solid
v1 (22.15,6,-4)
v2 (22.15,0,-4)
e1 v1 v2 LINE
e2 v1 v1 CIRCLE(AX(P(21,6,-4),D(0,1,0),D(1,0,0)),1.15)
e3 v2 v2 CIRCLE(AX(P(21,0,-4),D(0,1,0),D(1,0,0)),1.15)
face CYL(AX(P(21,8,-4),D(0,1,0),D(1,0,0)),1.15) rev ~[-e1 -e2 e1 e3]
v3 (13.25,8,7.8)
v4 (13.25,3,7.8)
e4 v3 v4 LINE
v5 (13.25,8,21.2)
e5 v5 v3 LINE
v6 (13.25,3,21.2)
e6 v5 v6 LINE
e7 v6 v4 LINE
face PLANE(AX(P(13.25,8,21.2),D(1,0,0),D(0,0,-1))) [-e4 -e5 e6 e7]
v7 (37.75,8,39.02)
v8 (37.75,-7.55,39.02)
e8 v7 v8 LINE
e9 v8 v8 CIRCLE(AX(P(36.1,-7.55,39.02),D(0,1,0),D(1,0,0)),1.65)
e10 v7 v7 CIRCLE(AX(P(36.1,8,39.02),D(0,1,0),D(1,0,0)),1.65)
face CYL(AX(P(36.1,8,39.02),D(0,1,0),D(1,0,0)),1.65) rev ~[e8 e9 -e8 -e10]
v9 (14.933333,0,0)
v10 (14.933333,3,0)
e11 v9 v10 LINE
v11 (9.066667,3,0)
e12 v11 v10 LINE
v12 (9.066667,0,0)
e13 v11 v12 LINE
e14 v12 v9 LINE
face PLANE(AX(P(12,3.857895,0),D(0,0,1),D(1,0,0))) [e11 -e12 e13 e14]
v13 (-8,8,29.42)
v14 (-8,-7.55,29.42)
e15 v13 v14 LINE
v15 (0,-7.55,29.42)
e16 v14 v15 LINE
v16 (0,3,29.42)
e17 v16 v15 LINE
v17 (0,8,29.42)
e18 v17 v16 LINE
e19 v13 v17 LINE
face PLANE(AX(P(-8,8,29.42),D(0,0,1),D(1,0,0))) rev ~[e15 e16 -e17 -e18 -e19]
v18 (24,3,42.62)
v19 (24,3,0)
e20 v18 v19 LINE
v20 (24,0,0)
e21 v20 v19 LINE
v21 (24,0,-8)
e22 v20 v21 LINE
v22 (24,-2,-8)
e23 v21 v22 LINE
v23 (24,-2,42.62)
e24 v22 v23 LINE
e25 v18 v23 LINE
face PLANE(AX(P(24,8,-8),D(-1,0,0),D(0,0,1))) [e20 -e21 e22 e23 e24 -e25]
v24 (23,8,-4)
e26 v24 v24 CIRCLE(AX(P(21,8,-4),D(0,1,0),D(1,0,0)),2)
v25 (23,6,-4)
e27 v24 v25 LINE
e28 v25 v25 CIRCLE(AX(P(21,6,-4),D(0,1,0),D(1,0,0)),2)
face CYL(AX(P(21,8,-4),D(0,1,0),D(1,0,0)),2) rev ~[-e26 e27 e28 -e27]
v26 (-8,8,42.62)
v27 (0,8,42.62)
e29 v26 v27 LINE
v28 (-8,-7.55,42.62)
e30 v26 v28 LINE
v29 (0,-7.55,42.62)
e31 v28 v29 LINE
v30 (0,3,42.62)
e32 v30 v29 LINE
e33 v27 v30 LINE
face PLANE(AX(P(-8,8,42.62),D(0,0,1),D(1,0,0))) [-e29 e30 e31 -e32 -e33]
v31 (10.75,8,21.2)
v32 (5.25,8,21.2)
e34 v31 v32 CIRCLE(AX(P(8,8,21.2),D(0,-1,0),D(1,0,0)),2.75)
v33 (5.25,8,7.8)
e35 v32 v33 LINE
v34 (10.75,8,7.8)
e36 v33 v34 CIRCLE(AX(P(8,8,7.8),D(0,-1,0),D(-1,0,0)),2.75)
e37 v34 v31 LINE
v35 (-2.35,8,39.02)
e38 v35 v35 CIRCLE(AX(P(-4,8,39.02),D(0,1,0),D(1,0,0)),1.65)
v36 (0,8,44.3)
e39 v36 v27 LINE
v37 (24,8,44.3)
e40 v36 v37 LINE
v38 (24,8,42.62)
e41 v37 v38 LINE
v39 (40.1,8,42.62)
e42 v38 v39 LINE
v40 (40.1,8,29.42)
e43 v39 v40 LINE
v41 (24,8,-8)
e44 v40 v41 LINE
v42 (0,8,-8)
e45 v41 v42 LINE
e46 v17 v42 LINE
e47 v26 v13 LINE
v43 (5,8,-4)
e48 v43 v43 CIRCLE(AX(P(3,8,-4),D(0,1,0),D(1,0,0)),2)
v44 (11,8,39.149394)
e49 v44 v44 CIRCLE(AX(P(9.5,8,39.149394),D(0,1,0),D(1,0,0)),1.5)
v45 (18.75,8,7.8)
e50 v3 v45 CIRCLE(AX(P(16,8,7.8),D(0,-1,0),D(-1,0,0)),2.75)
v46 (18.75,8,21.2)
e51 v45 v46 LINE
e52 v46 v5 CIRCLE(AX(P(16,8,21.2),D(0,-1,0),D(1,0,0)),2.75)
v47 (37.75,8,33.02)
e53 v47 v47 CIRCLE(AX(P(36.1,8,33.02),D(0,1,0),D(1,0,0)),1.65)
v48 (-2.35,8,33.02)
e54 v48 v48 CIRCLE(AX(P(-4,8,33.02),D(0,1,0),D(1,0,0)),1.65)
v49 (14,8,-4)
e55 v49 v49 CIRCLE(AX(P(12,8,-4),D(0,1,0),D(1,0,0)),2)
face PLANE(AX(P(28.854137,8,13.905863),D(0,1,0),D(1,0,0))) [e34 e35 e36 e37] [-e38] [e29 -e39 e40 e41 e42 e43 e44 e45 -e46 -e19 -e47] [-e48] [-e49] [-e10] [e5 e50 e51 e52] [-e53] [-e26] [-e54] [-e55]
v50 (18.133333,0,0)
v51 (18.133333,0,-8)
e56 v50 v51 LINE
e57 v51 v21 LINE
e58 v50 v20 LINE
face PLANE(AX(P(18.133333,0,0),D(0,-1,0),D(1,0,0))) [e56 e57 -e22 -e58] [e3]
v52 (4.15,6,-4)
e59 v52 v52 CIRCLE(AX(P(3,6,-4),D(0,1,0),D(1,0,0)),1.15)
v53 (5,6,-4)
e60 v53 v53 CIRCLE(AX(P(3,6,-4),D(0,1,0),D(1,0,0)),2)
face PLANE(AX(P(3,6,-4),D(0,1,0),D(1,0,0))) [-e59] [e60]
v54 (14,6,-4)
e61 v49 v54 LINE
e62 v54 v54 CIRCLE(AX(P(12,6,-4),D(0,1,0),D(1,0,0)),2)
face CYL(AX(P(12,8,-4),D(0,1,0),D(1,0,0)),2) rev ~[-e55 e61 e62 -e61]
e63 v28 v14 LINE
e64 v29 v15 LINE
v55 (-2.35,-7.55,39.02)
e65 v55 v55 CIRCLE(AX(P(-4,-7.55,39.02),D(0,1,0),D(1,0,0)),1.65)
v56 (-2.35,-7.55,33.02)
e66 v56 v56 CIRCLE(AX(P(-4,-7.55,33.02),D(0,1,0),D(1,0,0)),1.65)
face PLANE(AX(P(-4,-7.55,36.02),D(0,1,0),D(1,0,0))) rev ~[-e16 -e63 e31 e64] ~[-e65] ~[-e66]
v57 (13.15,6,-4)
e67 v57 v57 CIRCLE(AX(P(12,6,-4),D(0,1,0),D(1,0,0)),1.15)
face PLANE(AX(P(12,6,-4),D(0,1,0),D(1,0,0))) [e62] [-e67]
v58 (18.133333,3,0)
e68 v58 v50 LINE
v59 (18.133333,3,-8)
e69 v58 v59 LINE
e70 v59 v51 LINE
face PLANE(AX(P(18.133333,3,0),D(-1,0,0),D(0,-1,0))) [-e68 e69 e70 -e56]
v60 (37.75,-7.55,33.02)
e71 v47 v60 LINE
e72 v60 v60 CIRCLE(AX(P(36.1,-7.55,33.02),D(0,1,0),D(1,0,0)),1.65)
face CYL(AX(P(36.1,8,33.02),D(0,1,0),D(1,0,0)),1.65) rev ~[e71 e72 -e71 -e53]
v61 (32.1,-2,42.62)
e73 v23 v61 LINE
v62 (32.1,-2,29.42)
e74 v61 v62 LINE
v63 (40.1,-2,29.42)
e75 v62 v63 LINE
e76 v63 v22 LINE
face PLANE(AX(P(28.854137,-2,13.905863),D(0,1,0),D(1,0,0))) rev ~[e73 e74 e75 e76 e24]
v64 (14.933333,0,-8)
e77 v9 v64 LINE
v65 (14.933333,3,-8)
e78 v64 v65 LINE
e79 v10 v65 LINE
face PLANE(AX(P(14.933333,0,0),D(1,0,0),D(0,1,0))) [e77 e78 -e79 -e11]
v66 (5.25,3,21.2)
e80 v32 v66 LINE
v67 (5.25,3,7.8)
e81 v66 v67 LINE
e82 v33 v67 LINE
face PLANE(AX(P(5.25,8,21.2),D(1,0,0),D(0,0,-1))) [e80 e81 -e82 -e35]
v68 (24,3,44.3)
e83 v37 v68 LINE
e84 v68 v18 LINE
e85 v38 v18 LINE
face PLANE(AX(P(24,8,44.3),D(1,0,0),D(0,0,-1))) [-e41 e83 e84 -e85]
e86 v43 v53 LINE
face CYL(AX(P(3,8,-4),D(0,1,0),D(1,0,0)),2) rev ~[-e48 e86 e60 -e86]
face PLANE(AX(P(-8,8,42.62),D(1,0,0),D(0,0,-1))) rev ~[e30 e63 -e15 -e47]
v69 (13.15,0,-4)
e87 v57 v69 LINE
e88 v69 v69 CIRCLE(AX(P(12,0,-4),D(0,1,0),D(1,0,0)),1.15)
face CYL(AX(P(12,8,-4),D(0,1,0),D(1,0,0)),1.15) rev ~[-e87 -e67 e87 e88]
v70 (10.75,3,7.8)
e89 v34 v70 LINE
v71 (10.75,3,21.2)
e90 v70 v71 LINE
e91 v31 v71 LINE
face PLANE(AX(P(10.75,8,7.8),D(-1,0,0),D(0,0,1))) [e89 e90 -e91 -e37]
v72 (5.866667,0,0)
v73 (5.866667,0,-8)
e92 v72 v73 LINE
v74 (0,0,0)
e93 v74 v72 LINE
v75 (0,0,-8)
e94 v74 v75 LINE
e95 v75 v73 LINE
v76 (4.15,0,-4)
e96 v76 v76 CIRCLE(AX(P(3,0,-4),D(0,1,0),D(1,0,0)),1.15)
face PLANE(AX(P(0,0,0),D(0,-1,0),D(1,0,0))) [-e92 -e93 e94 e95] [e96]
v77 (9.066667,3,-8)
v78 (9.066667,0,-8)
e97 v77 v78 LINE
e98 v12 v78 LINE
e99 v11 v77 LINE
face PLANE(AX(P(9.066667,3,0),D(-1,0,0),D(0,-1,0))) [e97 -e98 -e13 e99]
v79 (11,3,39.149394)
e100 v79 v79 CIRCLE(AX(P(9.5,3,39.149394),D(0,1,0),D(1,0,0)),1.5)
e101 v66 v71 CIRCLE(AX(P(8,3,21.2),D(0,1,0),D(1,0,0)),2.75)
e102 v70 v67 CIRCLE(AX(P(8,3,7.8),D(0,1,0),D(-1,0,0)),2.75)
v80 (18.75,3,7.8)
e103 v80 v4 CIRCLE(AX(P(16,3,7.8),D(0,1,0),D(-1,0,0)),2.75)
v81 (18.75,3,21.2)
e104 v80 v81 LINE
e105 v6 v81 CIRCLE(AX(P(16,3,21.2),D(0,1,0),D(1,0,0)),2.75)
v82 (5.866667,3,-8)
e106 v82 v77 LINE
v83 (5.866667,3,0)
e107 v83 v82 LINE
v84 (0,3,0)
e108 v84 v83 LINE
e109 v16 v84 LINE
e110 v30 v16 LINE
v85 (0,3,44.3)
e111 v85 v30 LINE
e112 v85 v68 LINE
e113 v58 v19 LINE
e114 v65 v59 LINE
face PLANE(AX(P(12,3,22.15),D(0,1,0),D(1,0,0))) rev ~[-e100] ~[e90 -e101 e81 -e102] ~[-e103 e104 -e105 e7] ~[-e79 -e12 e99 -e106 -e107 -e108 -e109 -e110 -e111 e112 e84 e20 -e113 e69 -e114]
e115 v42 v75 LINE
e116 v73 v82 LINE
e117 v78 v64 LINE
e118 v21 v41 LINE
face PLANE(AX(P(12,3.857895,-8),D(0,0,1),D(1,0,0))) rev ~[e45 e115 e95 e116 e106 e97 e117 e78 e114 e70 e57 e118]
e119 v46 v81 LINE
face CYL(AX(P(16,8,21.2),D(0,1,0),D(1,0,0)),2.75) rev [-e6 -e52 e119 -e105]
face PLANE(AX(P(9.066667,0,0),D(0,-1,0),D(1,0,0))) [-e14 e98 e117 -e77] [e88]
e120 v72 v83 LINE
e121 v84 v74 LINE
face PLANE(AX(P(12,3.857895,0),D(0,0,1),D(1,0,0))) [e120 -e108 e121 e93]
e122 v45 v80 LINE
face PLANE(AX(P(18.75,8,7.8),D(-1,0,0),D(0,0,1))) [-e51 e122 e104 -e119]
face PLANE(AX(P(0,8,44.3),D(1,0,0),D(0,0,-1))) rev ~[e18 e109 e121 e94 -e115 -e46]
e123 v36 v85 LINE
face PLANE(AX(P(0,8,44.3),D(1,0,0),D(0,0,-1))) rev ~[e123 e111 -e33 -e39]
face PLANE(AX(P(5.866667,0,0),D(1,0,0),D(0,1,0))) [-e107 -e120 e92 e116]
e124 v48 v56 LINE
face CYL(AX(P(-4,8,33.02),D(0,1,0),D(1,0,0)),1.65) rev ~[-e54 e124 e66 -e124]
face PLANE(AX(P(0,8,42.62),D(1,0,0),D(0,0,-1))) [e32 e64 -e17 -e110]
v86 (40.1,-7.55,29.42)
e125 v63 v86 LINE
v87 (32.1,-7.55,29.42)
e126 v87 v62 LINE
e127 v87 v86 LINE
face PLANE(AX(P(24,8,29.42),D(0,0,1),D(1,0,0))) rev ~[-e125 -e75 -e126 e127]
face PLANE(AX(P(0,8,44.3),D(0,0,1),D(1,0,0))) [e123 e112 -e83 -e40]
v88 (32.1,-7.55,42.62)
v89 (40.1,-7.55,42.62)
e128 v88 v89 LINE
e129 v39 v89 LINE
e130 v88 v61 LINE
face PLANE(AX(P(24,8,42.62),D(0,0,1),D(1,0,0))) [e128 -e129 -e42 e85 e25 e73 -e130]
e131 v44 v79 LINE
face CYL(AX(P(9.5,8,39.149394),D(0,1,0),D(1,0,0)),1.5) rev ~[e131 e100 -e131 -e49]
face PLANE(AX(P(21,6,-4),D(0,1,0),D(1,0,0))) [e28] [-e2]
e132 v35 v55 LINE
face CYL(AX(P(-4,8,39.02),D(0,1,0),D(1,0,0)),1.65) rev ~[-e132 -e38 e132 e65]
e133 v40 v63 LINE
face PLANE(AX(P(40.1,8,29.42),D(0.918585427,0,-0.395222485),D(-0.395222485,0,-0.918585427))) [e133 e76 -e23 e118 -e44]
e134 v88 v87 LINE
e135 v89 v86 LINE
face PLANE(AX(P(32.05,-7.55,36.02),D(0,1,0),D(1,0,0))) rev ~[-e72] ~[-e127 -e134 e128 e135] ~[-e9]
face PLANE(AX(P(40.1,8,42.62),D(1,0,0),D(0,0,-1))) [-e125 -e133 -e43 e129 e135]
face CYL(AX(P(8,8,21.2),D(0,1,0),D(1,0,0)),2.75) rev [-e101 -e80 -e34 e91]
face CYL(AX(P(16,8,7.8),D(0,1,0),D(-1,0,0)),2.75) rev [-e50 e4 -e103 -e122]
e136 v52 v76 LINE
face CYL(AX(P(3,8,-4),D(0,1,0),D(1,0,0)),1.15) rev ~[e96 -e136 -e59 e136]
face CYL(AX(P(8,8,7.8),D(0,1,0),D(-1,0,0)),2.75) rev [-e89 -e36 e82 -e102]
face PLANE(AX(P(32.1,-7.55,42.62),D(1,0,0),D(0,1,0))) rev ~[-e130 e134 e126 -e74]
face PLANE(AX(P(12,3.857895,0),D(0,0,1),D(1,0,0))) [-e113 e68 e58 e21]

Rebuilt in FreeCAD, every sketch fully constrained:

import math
import FreeCAD as App
import Part
import Sketcher
from FreeCAD import Vector
Q = App.Units.Quantity


def add_polygon(sketch, points):
    """Adds a closed chain of lines whose ends are joined by coincident constraints."""
    first, n = sketch.GeometryCount, len(points)
    for a, b in zip(points, points[1:] + points[:1]):
        sketch.addGeometry(Part.LineSegment(App.Vector(*a, 0), App.Vector(*b, 0)), False)
    for i in range(n):
        sketch.addConstraint(Sketcher.Constraint("Coincident", first + i, 2, first + (i + 1) % n, 1))

doc = App.newDocument("Part")
body = doc.addObject("PartDesign::Body", "Body")

sketch1 = body.newObject("Sketcher::SketchObject", "Sketch")
sketch1.AttachmentSupport = (doc.getObject("XY_Plane"), [""])
sketch1.MapMode = "FlatFace"
add_polygon(sketch1, [(0, 0), (5.9, 0), (5.9, 3), (9.1, 3), (9.1, 0), (14.9, 0), (14.9, 3), (18.1, 3), (18.1, 0), (24, 0), (24, 8), (0, 8)])
sketch1.addConstraint([
    Sketcher.Constraint("Horizontal", 0),
    Sketcher.Constraint("Vertical", 1),
    Sketcher.Constraint("Horizontal", 2),
    Sketcher.Constraint("Vertical", 3),
    Sketcher.Constraint("Horizontal", 4),
    Sketcher.Constraint("Vertical", 5),
    Sketcher.Constraint("Horizontal", 6),
    Sketcher.Constraint("Vertical", 7),
    Sketcher.Constraint("Horizontal", 8),
    Sketcher.Constraint("Vertical", 9),
    Sketcher.Constraint("Horizontal", 10),
    Sketcher.Constraint("Vertical", 11),
    Sketcher.Constraint("Coincident", 11, 2, -1, 1),
    Sketcher.Constraint("PointOnObject", 3, 2, -1),
    Sketcher.Constraint("PointOnObject", 7, 2, -1),
    Sketcher.Constraint("Horizontal", 2, 2, 5, 2),
    Sketcher.Constraint("Equal", 0, 4),
    Sketcher.Constraint("Equal", 2, 6),
    Sketcher.Constraint("Equal", 4, 8),
    Sketcher.Constraint("DistanceX", 10, 2, 10, 1, Q("24 mm")),
    Sketcher.Constraint("DistanceY", 1, 1, 1, 2, Q("3 mm")),
    Sketcher.Constraint("DistanceY", 9, 1, 9, 2, Q("8 mm")),
    Sketcher.Constraint("DistanceX", 2, 1, 2, 2, Q("3.2 mm")),
])
pad1 = body.newObject("PartDesign::Pad", "Pad")
pad1.Profile = sketch1
pad1.Length = 8
pad1.Reversed = True

sketch2 = body.newObject("Sketcher::SketchObject", "Sketch001")
sketch2.AttachmentSupport = (doc.getObject("XZ_Plane"), [""])
sketch2.MapMode = "FlatFace"
sketch2.AttachmentOffset = App.Placement(Vector(0, 0, -8), App.Rotation())
sketch2.addGeometry([
    Part.Circle(Vector(3, -4, 0), Vector(0, 0, 1), 1.1),
    Part.Circle(Vector(12, -4, 0), Vector(0, 0, 1), 1.1),
    Part.Circle(Vector(21, -4, 0), Vector(0, 0, 1), 1.1),
], False)
sketch2.addConstraint([
    Sketcher.Constraint("Equal", 0, 1),
    Sketcher.Constraint("Equal", 1, 2),
    Sketcher.Constraint("Horizontal", 0, 3, 1, 3),
    Sketcher.Constraint("Horizontal", 1, 3, 2, 3),
    Sketcher.Constraint("Diameter", 0, Q("2.3 mm")),
    Sketcher.Constraint("DistanceX", -1, 1, 0, 3, Q("3 mm")),
    Sketcher.Constraint("DistanceY", 0, 3, -1, 1, Q("4 mm")),
    Sketcher.Constraint("DistanceX", -1, 1, 1, 3, Q("12 mm")),
    Sketcher.Constraint("DistanceX", -1, 1, 2, 3, Q("21 mm")),
])
pocket1 = body.newObject("PartDesign::Pocket", "Pocket")
pocket1.Profile = sketch2
pocket1.Type = "ThroughAll"
pocket1.Reversed = True

sketch3 = body.newObject("Sketcher::SketchObject", "Sketch002")
sketch3.AttachmentSupport = (doc.getObject("XZ_Plane"), [""])
sketch3.MapMode = "FlatFace"
sketch3.AttachmentOffset = App.Placement(Vector(0, 0, -8), App.Rotation())
sketch3.addGeometry([
    Part.Circle(Vector(3, -4, 0), Vector(0, 0, 1), 2),
    Part.Circle(Vector(12, -4, 0), Vector(0, 0, 1), 2),
    Part.Circle(Vector(21, -4, 0), Vector(0, 0, 1), 2),
], False)
sketch3.addConstraint([
    Sketcher.Constraint("Equal", 0, 1),
    Sketcher.Constraint("Equal", 1, 2),
    Sketcher.Constraint("Horizontal", 0, 3, 1, 3),
    Sketcher.Constraint("Horizontal", 1, 3, 2, 3),
    Sketcher.Constraint("Diameter", 0, Q("4 mm")),
    Sketcher.Constraint("DistanceX", -1, 1, 0, 3, Q("3 mm")),
    Sketcher.Constraint("DistanceY", 0, 3, -1, 1, Q("4 mm")),
    Sketcher.Constraint("DistanceX", -1, 1, 1, 3, Q("12 mm")),
    Sketcher.Constraint("DistanceX", -1, 1, 2, 3, Q("21 mm")),
])
pocket2 = body.newObject("PartDesign::Pocket", "Pocket001")
pocket2.Profile = sketch3
pocket2.Length = 2
pocket2.Reversed = True

sketch4 = body.newObject("Sketcher::SketchObject", "Sketch003")
sketch4.AttachmentSupport = (doc.getObject("XZ_Plane"), [""])
sketch4.MapMode = "FlatFace"
sketch4.AttachmentOffset = App.Placement(Vector(0, 0, -8), App.Rotation())
add_polygon(sketch4, [(0, 0), (0, 44.3), (24, 44.3), (24, 0)])
sketch4.addGeometry(Part.Circle(Vector(9.5, 39.1, 0), Vector(0, 0, 1), 1.5), False)
sketch4.addConstraint([
    Sketcher.Constraint("Vertical", 0),
    Sketcher.Constraint("Horizontal", 1),
    Sketcher.Constraint("Vertical", 2),
    Sketcher.Constraint("Horizontal", 3),
    Sketcher.Constraint("Coincident", 3, 2, -1, 1),
    Sketcher.Constraint("Diameter", 4, Q("3 mm")),
    Sketcher.Constraint("DistanceX", 1, 1, 1, 2, Q("24 mm")),
    Sketcher.Constraint("DistanceY", 0, 1, 0, 2, Q("44.3 mm")),
    Sketcher.Constraint("DistanceX", -1, 1, 4, 3, Q("9.5 mm")),
    Sketcher.Constraint("DistanceY", -1, 1, 4, 3, Q("39.149394 mm")),
])
pad2 = body.newObject("PartDesign::Pad", "Pad001")
pad2.Profile = sketch4
pad2.Length = 5

sketch5 = body.newObject("Sketcher::SketchObject", "Sketch004")
sketch5.AttachmentSupport = (doc.getObject("XZ_Plane"), [""])
sketch5.MapMode = "FlatFace"
sketch5.AttachmentOffset = App.Placement(Vector(0, 0, -8), App.Rotation())
sketch5.addGeometry([
    Part.LineSegment(Vector(10.8, 21.2, 0), Vector(10.8, 7.8, 0)),
    Part.ArcOfCircle(Part.Circle(Vector(8, 7.8, 0), Vector(0, 0, 1), 2.8), math.radians(180), math.radians(360)),
    Part.LineSegment(Vector(5.2, 7.8, 0), Vector(5.2, 21.2, 0)),
    Part.ArcOfCircle(Part.Circle(Vector(8, 21.2, 0), Vector(0, 0, 1), 2.8), math.radians(0), math.radians(180)),
    Part.LineSegment(Vector(18.8, 21.2, 0), Vector(18.8, 7.8, 0)),
    Part.ArcOfCircle(Part.Circle(Vector(16, 7.8, 0), Vector(0, 0, 1), 2.8), math.radians(180), math.radians(360)),
    Part.LineSegment(Vector(13.2, 7.8, 0), Vector(13.2, 21.2, 0)),
    Part.ArcOfCircle(Part.Circle(Vector(16, 21.2, 0), Vector(0, 0, 1), 2.8), math.radians(0), math.radians(180)),
], False)
sketch5.addConstraint([
    Sketcher.Constraint("Tangent", 0, 2, 1, 2),
    Sketcher.Constraint("Tangent", 1, 1, 2, 1),
    Sketcher.Constraint("Tangent", 2, 2, 3, 2),
    Sketcher.Constraint("Tangent", 3, 1, 0, 1),
    Sketcher.Constraint("Tangent", 4, 2, 5, 2),
    Sketcher.Constraint("Tangent", 5, 1, 6, 1),
    Sketcher.Constraint("Tangent", 6, 2, 7, 2),
    Sketcher.Constraint("Tangent", 7, 1, 4, 1),
    Sketcher.Constraint("Vertical", 0),
    Sketcher.Constraint("Vertical", 2),
    Sketcher.Constraint("Vertical", 4),
    Sketcher.Constraint("Vertical", 6),
    Sketcher.Constraint("Equal", 3, 5),
    Sketcher.Constraint("Horizontal", 1, 3, 5, 3),
    Sketcher.Constraint("Horizontal", 3, 3, 7, 3),
    Sketcher.Constraint("Radius", 1, Q("2.75 mm")),
    Sketcher.Constraint("DistanceY", 0, 2, 0, 1, Q("13.4 mm")),
    Sketcher.Constraint("DistanceX", -1, 1, 1, 3, Q("8 mm")),
    Sketcher.Constraint("DistanceX", -1, 1, 5, 3, Q("16 mm")),
    Sketcher.Constraint("DistanceY", -1, 1, 1, 3, Q("7.8 mm")),
])
pocket3 = body.newObject("PartDesign::Pocket", "Pocket002")
pocket3.Profile = sketch5
pocket3.Length = 20
pocket3.Reversed = True

sketch6 = body.newObject("Sketcher::SketchObject", "Sketch005")
sketch6.AttachmentSupport = (doc.getObject("XZ_Plane"), [""])
sketch6.MapMode = "FlatFace"
sketch6.AttachmentOffset = App.Placement(Vector(0, 0, -8), App.Rotation())
add_polygon(sketch6, [(-8, 29.4), (-8, 42.6), (0, 42.6), (0, 29.4)])
sketch6.addGeometry(Part.Circle(Vector(-4, 39, 0), Vector(0, 0, 1), 1.6), False)
sketch6.addGeometry(Part.Circle(Vector(-4, 33, 0), Vector(0, 0, 1), 1.6), False)
add_polygon(sketch6, [(24, 29.4), (24, 42.6), (40.1, 42.6), (40.1, 29.4)])
sketch6.addGeometry(Part.Circle(Vector(36.1, 39, 0), Vector(0, 0, 1), 1.6), False)
sketch6.addGeometry(Part.Circle(Vector(36.1, 33, 0), Vector(0, 0, 1), 1.6), False)
sketch6.addConstraint([
    Sketcher.Constraint("Vertical", 0),
    Sketcher.Constraint("Horizontal", 1),
    Sketcher.Constraint("Vertical", 2),
    Sketcher.Constraint("Horizontal", 3),
    Sketcher.Constraint("Vertical", 6),
    Sketcher.Constraint("Horizontal", 7),
    Sketcher.Constraint("Vertical", 8),
    Sketcher.Constraint("Horizontal", 9),
    Sketcher.Constraint("Equal", 4, 5),
    Sketcher.Constraint("Equal", 5, 10),
    Sketcher.Constraint("Equal", 10, 11),
    Sketcher.Constraint("PointOnObject", 1, 2, -2),
    Sketcher.Constraint("Horizontal", 4, 3, 10, 3),
    Sketcher.Constraint("Horizontal", 5, 3, 11, 3),
    Sketcher.Constraint("Horizontal", 1, 2, 6, 2),
    Sketcher.Constraint("Horizontal", 3, 2, 8, 2),
    Sketcher.Constraint("Vertical", 4, 3, 5, 3),
    Sketcher.Constraint("Vertical", 10, 3, 11, 3),
    Sketcher.Constraint("Diameter", 4, Q("3.3 mm")),
    Sketcher.Constraint("DistanceX", 1, 1, 1, 2, Q("8 mm")),
    Sketcher.Constraint("DistanceX", 7, 1, 7, 2, Q("16.1 mm")),
    Sketcher.Constraint("DistanceY", 0, 1, 0, 2, Q("13.2 mm")),
    Sketcher.Constraint("DistanceX", 4, 3, -1, 1, Q("4 mm")),
    Sketcher.Constraint("DistanceX", -1, 1, 6, 2, Q("24 mm")),
    Sketcher.Constraint("DistanceY", 5, 3, 4, 3, Q("6 mm")),
    Sketcher.Constraint("DistanceX", 10, 3, 7, 2, Q("4 mm")),
    Sketcher.Constraint("DistanceY", 4, 3, 0, 2, Q("3.6 mm")),
    Sketcher.Constraint("DistanceY", -1, 1, 4, 3, Q("39.02 mm")),
])
pad3 = body.newObject("PartDesign::Pad", "Pad002")
pad3.Profile = sketch6
pad3.Length = 15.55

sketch7 = body.newObject("Sketcher::SketchObject", "Sketch006")
sketch7.AttachmentSupport = (doc.getObject("XY_Plane"), [""])
sketch7.MapMode = "FlatFace"
sketch7.AttachmentOffset = App.Placement(Vector(0, 0, 42.62), App.Rotation())
add_polygon(sketch7, [(24, -2), (24, -8), (32, -8), (32, -2)])
sketch7.addConstraint([
    Sketcher.Constraint("Vertical", 0),
    Sketcher.Constraint("Horizontal", 1),
    Sketcher.Constraint("Vertical", 2),
    Sketcher.Constraint("Horizontal", 3),
    Sketcher.Constraint("DistanceX", 1, 1, 1, 2, Q("8.1 mm")),
    Sketcher.Constraint("DistanceX", -1, 1, 0, 2, Q("24 mm")),
    Sketcher.Constraint("DistanceY", 2, 2, -1, 1, Q("2 mm")),
    Sketcher.Constraint("DistanceY", 0, 2, 0, 1, Q("5.55 mm")),
])
pocket4 = body.newObject("PartDesign::Pocket", "Pocket003")
pocket4.Profile = sketch7
pocket4.Length = 25

sketch8 = body.newObject("Sketcher::SketchObject", "Sketch007")
sketch8.AttachmentSupport = (doc.getObject("XZ_Plane"), [""])
sketch8.MapMode = "FlatFace"
sketch8.AttachmentOffset = App.Placement(Vector(0, 0, -8), App.Rotation())
add_polygon(sketch8, [(40, 29), (24, -8), (24, 29)])
sketch8.addConstraint([
    Sketcher.Constraint("Vertical", 1),
    Sketcher.Constraint("Horizontal", 2),
    Sketcher.Constraint("DistanceX", 2, 1, 2, 2, Q("16.1 mm")),
    Sketcher.Constraint("DistanceX", -1, 1, 0, 2, Q("24 mm")),
    Sketcher.Constraint("DistanceY", 0, 2, -1, 1, Q("8 mm")),
    Sketcher.Constraint("DistanceY", 1, 1, 1, 2, Q("37.42 mm")),
])
pad4 = body.newObject("PartDesign::Pad", "Pad003")
pad4.Profile = sketch8
pad4.Length = 10

doc.recompute()
